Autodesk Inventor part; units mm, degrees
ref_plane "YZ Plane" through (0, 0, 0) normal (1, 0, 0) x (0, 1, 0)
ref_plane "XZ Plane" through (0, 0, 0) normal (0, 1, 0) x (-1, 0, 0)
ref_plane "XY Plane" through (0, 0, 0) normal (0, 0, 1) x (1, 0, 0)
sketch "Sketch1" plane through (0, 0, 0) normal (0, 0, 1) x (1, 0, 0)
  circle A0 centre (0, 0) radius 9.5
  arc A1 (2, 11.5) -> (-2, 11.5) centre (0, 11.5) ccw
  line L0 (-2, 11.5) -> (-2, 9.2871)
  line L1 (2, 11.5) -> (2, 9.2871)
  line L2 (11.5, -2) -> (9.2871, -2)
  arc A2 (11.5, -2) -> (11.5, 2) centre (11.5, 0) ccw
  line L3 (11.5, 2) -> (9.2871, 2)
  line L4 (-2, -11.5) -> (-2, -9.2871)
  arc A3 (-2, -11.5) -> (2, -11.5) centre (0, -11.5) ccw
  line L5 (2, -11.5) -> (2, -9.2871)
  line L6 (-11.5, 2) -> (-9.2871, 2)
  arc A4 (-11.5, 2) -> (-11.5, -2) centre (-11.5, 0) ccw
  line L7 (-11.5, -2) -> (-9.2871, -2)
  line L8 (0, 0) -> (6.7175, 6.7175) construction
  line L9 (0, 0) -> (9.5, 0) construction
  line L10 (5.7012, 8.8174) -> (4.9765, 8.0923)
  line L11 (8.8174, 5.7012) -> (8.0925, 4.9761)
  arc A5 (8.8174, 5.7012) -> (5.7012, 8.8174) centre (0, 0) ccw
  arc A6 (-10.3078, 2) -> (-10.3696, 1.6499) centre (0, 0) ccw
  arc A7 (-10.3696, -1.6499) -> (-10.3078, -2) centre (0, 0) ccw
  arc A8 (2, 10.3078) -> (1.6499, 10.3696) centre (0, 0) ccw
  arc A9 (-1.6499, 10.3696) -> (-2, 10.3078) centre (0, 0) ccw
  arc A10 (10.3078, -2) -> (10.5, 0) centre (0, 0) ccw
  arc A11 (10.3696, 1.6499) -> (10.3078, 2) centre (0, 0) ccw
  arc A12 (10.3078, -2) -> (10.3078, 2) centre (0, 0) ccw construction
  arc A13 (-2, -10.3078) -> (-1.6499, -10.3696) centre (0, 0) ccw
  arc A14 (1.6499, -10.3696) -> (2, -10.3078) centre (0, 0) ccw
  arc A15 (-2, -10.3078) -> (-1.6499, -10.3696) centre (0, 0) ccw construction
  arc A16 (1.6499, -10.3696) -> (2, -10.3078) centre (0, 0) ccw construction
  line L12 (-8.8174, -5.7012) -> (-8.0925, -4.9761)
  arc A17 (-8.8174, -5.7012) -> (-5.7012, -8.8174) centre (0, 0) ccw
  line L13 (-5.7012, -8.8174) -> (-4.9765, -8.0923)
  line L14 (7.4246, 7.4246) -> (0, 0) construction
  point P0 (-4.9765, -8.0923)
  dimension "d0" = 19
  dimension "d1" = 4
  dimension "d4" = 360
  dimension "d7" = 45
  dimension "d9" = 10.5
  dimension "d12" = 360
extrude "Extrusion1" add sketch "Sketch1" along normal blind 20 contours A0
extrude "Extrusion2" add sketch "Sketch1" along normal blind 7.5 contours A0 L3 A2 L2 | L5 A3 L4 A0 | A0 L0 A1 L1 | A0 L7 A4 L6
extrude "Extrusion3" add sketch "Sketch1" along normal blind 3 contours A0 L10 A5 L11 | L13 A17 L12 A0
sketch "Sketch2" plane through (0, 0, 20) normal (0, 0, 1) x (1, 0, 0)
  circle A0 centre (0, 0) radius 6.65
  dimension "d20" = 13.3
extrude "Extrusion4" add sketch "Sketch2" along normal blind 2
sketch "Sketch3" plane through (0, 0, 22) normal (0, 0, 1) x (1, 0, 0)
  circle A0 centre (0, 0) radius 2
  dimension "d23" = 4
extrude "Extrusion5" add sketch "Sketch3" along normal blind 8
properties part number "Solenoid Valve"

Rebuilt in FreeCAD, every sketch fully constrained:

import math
import FreeCAD as App
import Part
import Sketcher

doc = App.newDocument("Part")
body = doc.addObject("PartDesign::Body", "Body")

sketch1 = doc.addObject("Sketcher::SketchObject", "Sketch")
body.addObject(sketch1)
sketch1.AttachmentSupport = (doc.XY_Plane, [""])
sketch1.MapMode = "FlatFace"
sketch1.addGeometry(Part.Circle(App.Vector(0, 0, 0), App.Vector(0, 0, 1), 10), False)
sketch1.addConstraint([
    Sketcher.Constraint("Coincident", 0, 3, -1, 1),
    Sketcher.Constraint("Diameter", 0, 19.0),
])
pad1 = doc.addObject("PartDesign::Pad", "Pad")
body.addObject(pad1)
pad1.Profile = sketch1
pad1.Length = 20

sketch2 = doc.addObject("Sketcher::SketchObject", "Sketch001")
body.addObject(sketch2)
sketch2.AttachmentSupport = (doc.XY_Plane, [""])
sketch2.MapMode = "FlatFace"
sketch2.addGeometry([
    Part.ArcOfCircle(Part.Circle(App.Vector(0, 0, 0), App.Vector(0, 0, 1), 9.5), math.radians(-12), math.radians(12)),
    Part.LineSegment(App.Vector(9.3, -2, 0), App.Vector(11.5, -2, 0)),
    Part.ArcOfCircle(Part.Circle(App.Vector(11.5, 0, 0), App.Vector(0, 0, 1), 2), math.radians(-90), math.radians(90)),
    Part.LineSegment(App.Vector(11.5, 2, 0), App.Vector(9.3, 2, 0)),
    Part.LineSegment(App.Vector(2, -11.5, 0), App.Vector(2, -9.3, 0)),
    Part.ArcOfCircle(Part.Circle(App.Vector(0, 0, 0), App.Vector(0, 0, 1), 9.5), math.radians(-102), math.radians(-78)),
    Part.LineSegment(App.Vector(-2, -9.3, 0), App.Vector(-2, -11.5, 0)),
    Part.ArcOfCircle(Part.Circle(App.Vector(0, -11.5, 0), App.Vector(0, 0, 1), 2), math.radians(180), math.radians(360)),
    Part.ArcOfCircle(Part.Circle(App.Vector(0, 0, 0), App.Vector(0, 0, 1), 9.5), math.radians(78), math.radians(102)),
    Part.LineSegment(App.Vector(2, 9.3, 0), App.Vector(2, 11.5, 0)),
    Part.ArcOfCircle(Part.Circle(App.Vector(0, 11.5, 0), App.Vector(0, 0, 1), 2), math.radians(0), math.radians(180)),
    Part.LineSegment(App.Vector(-2, 11.5, 0), App.Vector(-2, 9.3, 0)),
    Part.ArcOfCircle(Part.Circle(App.Vector(0, 0, 0), App.Vector(0, 0, 1), 9.5), math.radians(168), math.radians(192)),
    Part.LineSegment(App.Vector(-9.3, 2, 0), App.Vector(-11.5, 2, 0)),
    Part.ArcOfCircle(Part.Circle(App.Vector(-11.5, 0, 0), App.Vector(0, 0, 1), 2), math.radians(90), math.radians(270)),
    Part.LineSegment(App.Vector(-11.5, -2, 0), App.Vector(-9.3, -2, 0)),
], False)
sketch2.addConstraint([
    Sketcher.Constraint("Coincident", 0, 1, 1, 1),
    Sketcher.Constraint("Tangent", 1, 2, 2, 1),
    Sketcher.Constraint("Tangent", 2, 2, 3, 1),
    Sketcher.Constraint("Coincident", 3, 2, 0, 2),
    Sketcher.Constraint("Coincident", 4, 2, 5, 2),
    Sketcher.Constraint("Coincident", 5, 1, 6, 1),
    Sketcher.Constraint("Tangent", 6, 2, 7, 1),
    Sketcher.Constraint("Tangent", 7, 2, 4, 1),
    Sketcher.Constraint("Coincident", 8, 1, 9, 1),
    Sketcher.Constraint("Tangent", 9, 2, 10, 1),
    Sketcher.Constraint("Tangent", 10, 2, 11, 1),
    Sketcher.Constraint("Coincident", 11, 2, 8, 2),
    Sketcher.Constraint("Coincident", 12, 1, 13, 1),
    Sketcher.Constraint("Tangent", 13, 2, 14, 1),
    Sketcher.Constraint("Tangent", 14, 2, 15, 1),
    Sketcher.Constraint("Coincident", 15, 2, 12, 2),
    Sketcher.Constraint("Horizontal", 1),
    Sketcher.Constraint("Horizontal", 3),
    Sketcher.Constraint("Vertical", 4),
    Sketcher.Constraint("Vertical", 6),
    Sketcher.Constraint("Vertical", 9),
    Sketcher.Constraint("Vertical", 11),
    Sketcher.Constraint("Horizontal", 13),
    Sketcher.Constraint("Horizontal", 15),
    Sketcher.Constraint("Coincident", 0, 3, -1, 1),
    Sketcher.Constraint("Coincident", 5, 3, -1, 1),
    Sketcher.Constraint("Coincident", 8, 3, -1, 1),
    Sketcher.Constraint("Coincident", 12, 3, -1, 1),
    Sketcher.Constraint("Equal", 0, 5),
    Sketcher.Constraint("Equal", 2, 7),
    Sketcher.Constraint("Equal", 5, 8),
    Sketcher.Constraint("Equal", 7, 10),
    Sketcher.Constraint("Equal", 8, 12),
    Sketcher.Constraint("Equal", 10, 14),
    Sketcher.Constraint("Symmetric", 7, 3, 10, 3, -1, 1),
    Sketcher.Constraint("Symmetric", 2, 3, 14, 3, -1, 1),
    Sketcher.Constraint("PointOnObject", 2, 3, -1),
    Sketcher.Constraint("PointOnObject", 7, 3, -2),
    Sketcher.Constraint("Equal", 15, 4),
    Sketcher.Constraint("Radius", 2, 2.0),
    Sketcher.Constraint("Radius", 0, 9.5),
    Sketcher.Constraint("DistanceY", 7, 3, 10, 3, 23.0),
])
pad2 = doc.addObject("PartDesign::Pad", "Pad001")
body.addObject(pad2)
pad2.Profile = sketch2
pad2.Length = 7.5

sketch3 = doc.addObject("Sketcher::SketchObject", "Sketch002")
body.addObject(sketch3)
sketch3.AttachmentSupport = (doc.XY_Plane, [""])
sketch3.MapMode = "FlatFace"
sketch3.addGeometry([
    Part.ArcOfCircle(Part.Circle(App.Vector(0, 0, 0), App.Vector(0, 0, 1), 9.5), math.radians(32), math.radians(58)),
    Part.LineSegment(App.Vector(8.1, 5, 0), App.Vector(8.8, 5.7, 0)),
    Part.ArcOfCircle(Part.Circle(App.Vector(0, 0, 0), App.Vector(0, 0, 1), 10.5), math.radians(33), math.radians(57)),
    Part.LineSegment(App.Vector(5.7, 8.8, 0), App.Vector(5, 8.1, 0)),
    Part.LineSegment(App.Vector(-5.7, -8.8, 0), App.Vector(-5, -8.1, 0)),
    Part.ArcOfCircle(Part.Circle(App.Vector(0, 0, 0), App.Vector(0, 0, 1), 9.5), math.radians(-148), math.radians(-122)),
    Part.LineSegment(App.Vector(-8.1, -5, 0), App.Vector(-8.8, -5.7, 0)),
    Part.ArcOfCircle(Part.Circle(App.Vector(0, 0, 0), App.Vector(0, 0, 1), 10.5), math.radians(-147), math.radians(-123)),
], False)
sketch3.addConstraint([
    Sketcher.Constraint("Coincident", 0, 1, 1, 1),
    Sketcher.Constraint("Coincident", 1, 2, 2, 1),
    Sketcher.Constraint("Coincident", 2, 2, 3, 1),
    Sketcher.Constraint("Coincident", 3, 2, 0, 2),
    Sketcher.Constraint("Coincident", 4, 2, 5, 2),
    Sketcher.Constraint("Coincident", 5, 1, 6, 1),
    Sketcher.Constraint("Coincident", 6, 2, 7, 1),
    Sketcher.Constraint("Coincident", 7, 2, 4, 1),
    Sketcher.Constraint("Coincident", 0, 3, -1, 1),
    Sketcher.Constraint("Coincident", 2, 3, -1, 1),
    Sketcher.Constraint("Coincident", 5, 3, -1, 1),
    Sketcher.Constraint("Coincident", 7, 3, -1, 1),
    Sketcher.Constraint("Equal", 0, 5),
    Sketcher.Constraint("Equal", 2, 7),
    Sketcher.Constraint("Parallel", 1, 3),
    Sketcher.Constraint("Parallel", 3, 4),
    Sketcher.Constraint("Parallel", 4, 6),
    Sketcher.Constraint("Equal", 1, 3),
    Sketcher.Constraint("Equal", 3, 4),
    Sketcher.Constraint("Equal", 4, 6),
    Sketcher.Constraint("Radius", 0, 9.5),
    Sketcher.Constraint("Radius", 2, 10.5),
    Sketcher.Constraint("DistanceY", -1, 1, 0, 1, 4.976),
    Sketcher.Constraint("DistanceX", 0, 1, 1, 2, 0.725),
])
pad3 = doc.addObject("PartDesign::Pad", "Pad002")
body.addObject(pad3)
pad3.Profile = sketch3
pad3.Length = 3

sketch4 = doc.addObject("Sketcher::SketchObject", "Sketch003")
body.addObject(sketch4)
sketch4.AttachmentSupport = (doc.XY_Plane, [""])
sketch4.MapMode = "FlatFace"
sketch4.AttachmentOffset = App.Placement(App.Vector(0, 0, 20), App.Rotation())
sketch4.addGeometry(Part.Circle(App.Vector(0, 0, 0), App.Vector(0, 0, 1), 7), False)
sketch4.addConstraint([
    Sketcher.Constraint("Coincident", 0, 3, -1, 1),
    Sketcher.Constraint("Diameter", 0, 13.3),
])
pad4 = doc.addObject("PartDesign::Pad", "Pad003")
body.addObject(pad4)
pad4.Profile = sketch4
pad4.Length = 2

sketch5 = doc.addObject("Sketcher::SketchObject", "Sketch004")
body.addObject(sketch5)
sketch5.AttachmentSupport = (doc.XY_Plane, [""])
sketch5.MapMode = "FlatFace"
sketch5.AttachmentOffset = App.Placement(App.Vector(0, 0, 22), App.Rotation())
sketch5.addGeometry(Part.Circle(App.Vector(0, 0, 0), App.Vector(0, 0, 1), 2), False)
sketch5.addConstraint([
    Sketcher.Constraint("Coincident", 0, 3, -1, 1),
    Sketcher.Constraint("Diameter", 0, 4.0),
])
pad5 = doc.addObject("PartDesign::Pad", "Pad004")
body.addObject(pad5)
pad5.Profile = sketch5
pad5.Length = 8

doc.recompute()
